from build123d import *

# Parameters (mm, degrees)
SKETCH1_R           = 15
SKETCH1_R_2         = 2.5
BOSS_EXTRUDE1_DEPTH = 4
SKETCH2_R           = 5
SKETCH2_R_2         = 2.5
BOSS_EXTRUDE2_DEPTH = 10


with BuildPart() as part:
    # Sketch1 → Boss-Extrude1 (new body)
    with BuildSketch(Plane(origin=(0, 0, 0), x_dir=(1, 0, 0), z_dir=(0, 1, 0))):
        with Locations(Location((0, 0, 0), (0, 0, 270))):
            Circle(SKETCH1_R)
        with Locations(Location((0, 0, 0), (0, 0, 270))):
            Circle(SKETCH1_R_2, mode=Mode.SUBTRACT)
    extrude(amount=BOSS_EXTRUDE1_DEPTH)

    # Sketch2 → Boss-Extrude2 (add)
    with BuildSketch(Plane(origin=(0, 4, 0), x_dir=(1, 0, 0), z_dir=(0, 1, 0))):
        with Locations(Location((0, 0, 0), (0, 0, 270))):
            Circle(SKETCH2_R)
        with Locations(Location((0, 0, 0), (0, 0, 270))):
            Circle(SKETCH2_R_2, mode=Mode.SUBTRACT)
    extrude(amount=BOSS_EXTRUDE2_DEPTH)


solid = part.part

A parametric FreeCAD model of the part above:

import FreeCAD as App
import Part
import Sketcher
from FreeCAD import Vector

doc = App.newDocument("Part")
params = doc.addObject("Spreadsheet::Sheet", "Params")
for row, (alias, value) in enumerate([
    ("sketch1_diameter", "30 mm"),
    ("sketch1_diameter2", "5 mm"),
    ("pad1_length", "4 mm"),
    ("sketch2_diameter", "10 mm"),
    ("sketch2_diameter2", "5 mm"),
    ("pad2_length", "10 mm"),
], start=1):
    params.set(f"A{row}", alias)
    params.set(f"B{row}", "=" + value)
    params.setAlias(f"B{row}", alias)

body = doc.addObject("PartDesign::Body", "Body")

# Sketch on XZ plane
sketch1 = doc.addObject("Sketcher::SketchObject", "Sketch")
body.addObject(sketch1)
sketch1.AttachmentSupport = (doc.XZ_Plane, [""])
sketch1.MapMode = "FlatFace"
sketch1.addGeometry(Part.Circle(Vector(0, 0, 0), Vector(0, 0, 1), 15), False)
sketch1.addGeometry(Part.Circle(Vector(0, 0, 0), Vector(0, 0, 1), 2.5), False)
sketch1.addConstraint(Sketcher.Constraint("Coincident", 0, 3, -1, 1))
sketch1.addConstraint(Sketcher.Constraint("Coincident", 1, 3, -1, 1))
sketch1.addConstraint(Sketcher.Constraint("Diameter", 0, 30.0))
sketch1.addConstraint(Sketcher.Constraint("Diameter", 1, 5.0))
sketch1.setExpression("Constraints[2]", "Params.sketch1_diameter")
sketch1.setExpression("Constraints[3]", "Params.sketch1_diameter2")
pad1 = doc.addObject("PartDesign::Pad", "Pad")
body.addObject(pad1)
pad1.Profile = sketch1
pad1.setExpression("Length", "Params.pad1_length")
pad1.Reversed = True

# Sketch on XZ plane
sketch2 = doc.addObject("Sketcher::SketchObject", "Sketch001")
body.addObject(sketch2)
sketch2.AttachmentSupport = (doc.XZ_Plane, [""])
sketch2.MapMode = "FlatFace"
sketch2.AttachmentOffset = App.Placement(Vector(0, 0, -4), App.Rotation())
sketch2.addGeometry(Part.Circle(Vector(0, 0, 0), Vector(0, 0, 1), 5), False)
sketch2.addGeometry(Part.Circle(Vector(0, 0, 0), Vector(0, 0, 1), 2.5), False)
sketch2.addConstraint(Sketcher.Constraint("Coincident", 0, 3, -1, 1))
sketch2.addConstraint(Sketcher.Constraint("Coincident", 1, 3, -1, 1))
sketch2.addConstraint(Sketcher.Constraint("Diameter", 0, 10.0))
sketch2.addConstraint(Sketcher.Constraint("Diameter", 1, 5.0))
sketch2.setExpression("Constraints[2]", "Params.sketch2_diameter")
sketch2.setExpression("Constraints[3]", "Params.sketch2_diameter2")
pad2 = doc.addObject("PartDesign::Pad", "Pad001")
body.addObject(pad2)
pad2.Profile = sketch2
pad2.setExpression("Length", "Params.pad2_length")
pad2.Reversed = True

doc.recompute()
